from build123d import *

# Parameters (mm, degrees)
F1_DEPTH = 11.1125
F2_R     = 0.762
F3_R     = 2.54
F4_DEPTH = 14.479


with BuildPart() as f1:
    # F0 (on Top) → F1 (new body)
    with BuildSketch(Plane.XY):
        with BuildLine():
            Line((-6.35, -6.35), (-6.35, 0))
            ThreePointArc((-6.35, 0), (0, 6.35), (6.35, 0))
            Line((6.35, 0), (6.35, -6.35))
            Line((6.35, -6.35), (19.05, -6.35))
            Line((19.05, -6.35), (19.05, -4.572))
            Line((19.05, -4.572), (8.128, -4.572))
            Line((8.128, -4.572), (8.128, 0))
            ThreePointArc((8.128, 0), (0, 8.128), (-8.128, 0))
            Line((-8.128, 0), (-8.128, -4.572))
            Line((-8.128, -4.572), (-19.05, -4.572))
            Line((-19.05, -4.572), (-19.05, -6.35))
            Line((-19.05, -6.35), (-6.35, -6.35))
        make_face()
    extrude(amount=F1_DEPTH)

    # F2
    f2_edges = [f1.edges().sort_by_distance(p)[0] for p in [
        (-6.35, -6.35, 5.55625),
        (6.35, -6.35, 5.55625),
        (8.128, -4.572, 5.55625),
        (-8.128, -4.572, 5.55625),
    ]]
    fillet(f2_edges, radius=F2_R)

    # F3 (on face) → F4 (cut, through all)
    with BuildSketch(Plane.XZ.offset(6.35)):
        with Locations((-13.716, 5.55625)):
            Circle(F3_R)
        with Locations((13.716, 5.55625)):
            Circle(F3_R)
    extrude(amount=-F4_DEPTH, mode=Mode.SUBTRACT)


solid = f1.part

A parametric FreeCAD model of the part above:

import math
import FreeCAD as App
import Part
import Sketcher
from FreeCAD import Vector
Q = App.Units.Quantity


def edges_at(feature, points):
    """Names of the edges that pass closest to the given points."""
    edges = feature.Shape.Edges
    near = lambda p: min(range(len(edges)), key=lambda i: edges[i].distToShape(Part.Vertex(*p))[0])
    return sorted({f"Edge{near(p) + 1}" for p in points})

doc = App.newDocument("Part")
params = doc.addObject("Spreadsheet::Sheet", "Params")
for row, (alias, value) in enumerate([
    ("sketch1_radius", "0.25 in"),
    ("sketch1_radius2", "0.32 in"),
    ("sketch1_width", "0.5 in"),
    ("sketch1_height", "0.25 in"),
    ("sketch1_height2", "0.07 in"),
    ("pad1_length", "0.4375 in"),
    ("fillet_radius", "0.03 in"),
    ("sketch2_diameter", "0.2 in"),
], start=1):
    params.set(f"A{row}", alias)
    params.set(f"B{row}", "=" + value)
    params.setAlias(f"B{row}", alias)

body = doc.addObject("PartDesign::Body", "Body")

sketch1 = doc.addObject("Sketcher::SketchObject", "Sketch")
body.addObject(sketch1)
sketch1.AttachmentSupport = (doc.XY_Plane, [""])
sketch1.MapMode = "FlatFace"
sketch1.addGeometry([
    Part.LineSegment(Vector(-6.3, -6.3, 0), Vector(-6.3, 0, 0)),
    Part.ArcOfCircle(Part.Circle(Vector(0, 0, 0), Vector(0, 0, 1), 6.3), math.radians(0), math.radians(180)),
    Part.LineSegment(Vector(6.3, 0, 0), Vector(6.3, -6.3, 0)),
    Part.LineSegment(Vector(6.3, -6.3, 0), Vector(19.1, -6.3, 0)),
    Part.LineSegment(Vector(19.1, -6.3, 0), Vector(19.1, -4.6, 0)),
    Part.LineSegment(Vector(19.1, -4.6, 0), Vector(8.1, -4.6, 0)),
    Part.LineSegment(Vector(8.1, -4.6, 0), Vector(8.1, 0, 0)),
    Part.ArcOfCircle(Part.Circle(Vector(0, 0, 0), Vector(0, 0, 1), 8.1), math.radians(0), math.radians(180)),
    Part.LineSegment(Vector(-8.1, 0, 0), Vector(-8.1, -4.6, 0)),
    Part.LineSegment(Vector(-8.1, -4.6, 0), Vector(-19.1, -4.6, 0)),
    Part.LineSegment(Vector(-19.1, -4.6, 0), Vector(-19.1, -6.3, 0)),
    Part.LineSegment(Vector(-19.1, -6.3, 0), Vector(-6.3, -6.3, 0)),
], False)
sketch1.addConstraint([
    Sketcher.Constraint("Tangent", 0, 2, 1, 2),
    Sketcher.Constraint("Tangent", 1, 1, 2, 1),
    Sketcher.Constraint("Coincident", 2, 2, 3, 1),
    Sketcher.Constraint("Coincident", 3, 2, 4, 1),
    Sketcher.Constraint("Coincident", 4, 2, 5, 1),
    Sketcher.Constraint("Coincident", 5, 2, 6, 1),
    Sketcher.Constraint("Tangent", 6, 2, 7, 1),
    Sketcher.Constraint("Tangent", 7, 2, 8, 1),
    Sketcher.Constraint("Coincident", 8, 2, 9, 1),
    Sketcher.Constraint("Coincident", 9, 2, 10, 1),
    Sketcher.Constraint("Coincident", 10, 2, 11, 1),
    Sketcher.Constraint("Coincident", 11, 2, 0, 1),
    Sketcher.Constraint("Vertical", 0),
    Sketcher.Constraint("Vertical", 2),
    Sketcher.Constraint("Horizontal", 3),
    Sketcher.Constraint("Vertical", 4),
    Sketcher.Constraint("Horizontal", 5),
    Sketcher.Constraint("Vertical", 6),
    Sketcher.Constraint("Vertical", 8),
    Sketcher.Constraint("Horizontal", 9),
    Sketcher.Constraint("Vertical", 10),
    Sketcher.Constraint("Horizontal", 11),
    Sketcher.Constraint("Coincident", 1, 3, -1, 1),
    Sketcher.Constraint("Coincident", 7, 3, -1, 1),
    Sketcher.Constraint("Symmetric", 4, 2, 9, 2, -2),
    Sketcher.Constraint("Horizontal", 3, 2, 10, 2),
    Sketcher.Constraint("Radius", 1, Q("0.25 in")),
    Sketcher.Constraint("Radius", 7, Q("0.32 in")),
    Sketcher.Constraint("DistanceX", 3, 1, 3, 2, Q("0.5 in")),
    Sketcher.Constraint("DistanceY", 0, 1, 0, 2, Q("0.25 in")),
    Sketcher.Constraint("DistanceY", 4, 1, 4, 2, Q("0.07 in")),
])
sketch1.setExpression("Constraints[26]", "Params.sketch1_radius")
sketch1.setExpression("Constraints[27]", "Params.sketch1_radius2")
sketch1.setExpression("Constraints[28]", "Params.sketch1_width")
sketch1.setExpression("Constraints[29]", "Params.sketch1_height")
sketch1.setExpression("Constraints[30]", "Params.sketch1_height2")
pad1 = doc.addObject("PartDesign::Pad", "Pad")
body.addObject(pad1)
pad1.Profile = sketch1
pad1.setExpression("Length", "Params.pad1_length")
doc.recompute()

fillet = doc.addObject("PartDesign::Fillet", "Fillet")
body.addObject(fillet)
fillet.Base = (pad1, edges_at(pad1, [
    (-6.35, -6.35, 5.556),
    (6.35, -6.35, 5.556),
    (8.128, -4.572, 5.556),
    (-8.128, -4.572, 5.556),
]))
fillet.setExpression("Radius", "Params.fillet_radius")

sketch2 = doc.addObject("Sketcher::SketchObject", "Sketch001")
body.addObject(sketch2)
sketch2.AttachmentSupport = (doc.XZ_Plane, [""])
sketch2.MapMode = "FlatFace"
sketch2.AttachmentOffset = App.Placement(Vector(0, 0, 0.25 * 25.4), App.Rotation())
sketch2.addGeometry([
    Part.Circle(Vector(-13.7, 5.6, 0), Vector(0, 0, 1), 2.5),
    Part.Circle(Vector(13.7, 5.6, 0), Vector(0, 0, 1), 2.5),
], False)
sketch2.addConstraint([
    Sketcher.Constraint("Equal", 0, 1),
    Sketcher.Constraint("Symmetric", 0, 3, 1, 3, -2),
    Sketcher.Constraint("Diameter", 0, Q("0.2 in")),
    Sketcher.Constraint("DistanceX", 0, 3, -1, 1, Q("0.54 in")),
    Sketcher.Constraint("DistanceY", -1, 1, 0, 3, Q("0.21875 in")),
])
sketch2.setExpression("Constraints[2]", "Params.sketch2_diameter")
pocket1 = doc.addObject("PartDesign::Pocket", "Pocket")
body.addObject(pocket1)
pocket1.Profile = sketch2
pocket1.Type = "ThroughAll"

doc.recompute()
